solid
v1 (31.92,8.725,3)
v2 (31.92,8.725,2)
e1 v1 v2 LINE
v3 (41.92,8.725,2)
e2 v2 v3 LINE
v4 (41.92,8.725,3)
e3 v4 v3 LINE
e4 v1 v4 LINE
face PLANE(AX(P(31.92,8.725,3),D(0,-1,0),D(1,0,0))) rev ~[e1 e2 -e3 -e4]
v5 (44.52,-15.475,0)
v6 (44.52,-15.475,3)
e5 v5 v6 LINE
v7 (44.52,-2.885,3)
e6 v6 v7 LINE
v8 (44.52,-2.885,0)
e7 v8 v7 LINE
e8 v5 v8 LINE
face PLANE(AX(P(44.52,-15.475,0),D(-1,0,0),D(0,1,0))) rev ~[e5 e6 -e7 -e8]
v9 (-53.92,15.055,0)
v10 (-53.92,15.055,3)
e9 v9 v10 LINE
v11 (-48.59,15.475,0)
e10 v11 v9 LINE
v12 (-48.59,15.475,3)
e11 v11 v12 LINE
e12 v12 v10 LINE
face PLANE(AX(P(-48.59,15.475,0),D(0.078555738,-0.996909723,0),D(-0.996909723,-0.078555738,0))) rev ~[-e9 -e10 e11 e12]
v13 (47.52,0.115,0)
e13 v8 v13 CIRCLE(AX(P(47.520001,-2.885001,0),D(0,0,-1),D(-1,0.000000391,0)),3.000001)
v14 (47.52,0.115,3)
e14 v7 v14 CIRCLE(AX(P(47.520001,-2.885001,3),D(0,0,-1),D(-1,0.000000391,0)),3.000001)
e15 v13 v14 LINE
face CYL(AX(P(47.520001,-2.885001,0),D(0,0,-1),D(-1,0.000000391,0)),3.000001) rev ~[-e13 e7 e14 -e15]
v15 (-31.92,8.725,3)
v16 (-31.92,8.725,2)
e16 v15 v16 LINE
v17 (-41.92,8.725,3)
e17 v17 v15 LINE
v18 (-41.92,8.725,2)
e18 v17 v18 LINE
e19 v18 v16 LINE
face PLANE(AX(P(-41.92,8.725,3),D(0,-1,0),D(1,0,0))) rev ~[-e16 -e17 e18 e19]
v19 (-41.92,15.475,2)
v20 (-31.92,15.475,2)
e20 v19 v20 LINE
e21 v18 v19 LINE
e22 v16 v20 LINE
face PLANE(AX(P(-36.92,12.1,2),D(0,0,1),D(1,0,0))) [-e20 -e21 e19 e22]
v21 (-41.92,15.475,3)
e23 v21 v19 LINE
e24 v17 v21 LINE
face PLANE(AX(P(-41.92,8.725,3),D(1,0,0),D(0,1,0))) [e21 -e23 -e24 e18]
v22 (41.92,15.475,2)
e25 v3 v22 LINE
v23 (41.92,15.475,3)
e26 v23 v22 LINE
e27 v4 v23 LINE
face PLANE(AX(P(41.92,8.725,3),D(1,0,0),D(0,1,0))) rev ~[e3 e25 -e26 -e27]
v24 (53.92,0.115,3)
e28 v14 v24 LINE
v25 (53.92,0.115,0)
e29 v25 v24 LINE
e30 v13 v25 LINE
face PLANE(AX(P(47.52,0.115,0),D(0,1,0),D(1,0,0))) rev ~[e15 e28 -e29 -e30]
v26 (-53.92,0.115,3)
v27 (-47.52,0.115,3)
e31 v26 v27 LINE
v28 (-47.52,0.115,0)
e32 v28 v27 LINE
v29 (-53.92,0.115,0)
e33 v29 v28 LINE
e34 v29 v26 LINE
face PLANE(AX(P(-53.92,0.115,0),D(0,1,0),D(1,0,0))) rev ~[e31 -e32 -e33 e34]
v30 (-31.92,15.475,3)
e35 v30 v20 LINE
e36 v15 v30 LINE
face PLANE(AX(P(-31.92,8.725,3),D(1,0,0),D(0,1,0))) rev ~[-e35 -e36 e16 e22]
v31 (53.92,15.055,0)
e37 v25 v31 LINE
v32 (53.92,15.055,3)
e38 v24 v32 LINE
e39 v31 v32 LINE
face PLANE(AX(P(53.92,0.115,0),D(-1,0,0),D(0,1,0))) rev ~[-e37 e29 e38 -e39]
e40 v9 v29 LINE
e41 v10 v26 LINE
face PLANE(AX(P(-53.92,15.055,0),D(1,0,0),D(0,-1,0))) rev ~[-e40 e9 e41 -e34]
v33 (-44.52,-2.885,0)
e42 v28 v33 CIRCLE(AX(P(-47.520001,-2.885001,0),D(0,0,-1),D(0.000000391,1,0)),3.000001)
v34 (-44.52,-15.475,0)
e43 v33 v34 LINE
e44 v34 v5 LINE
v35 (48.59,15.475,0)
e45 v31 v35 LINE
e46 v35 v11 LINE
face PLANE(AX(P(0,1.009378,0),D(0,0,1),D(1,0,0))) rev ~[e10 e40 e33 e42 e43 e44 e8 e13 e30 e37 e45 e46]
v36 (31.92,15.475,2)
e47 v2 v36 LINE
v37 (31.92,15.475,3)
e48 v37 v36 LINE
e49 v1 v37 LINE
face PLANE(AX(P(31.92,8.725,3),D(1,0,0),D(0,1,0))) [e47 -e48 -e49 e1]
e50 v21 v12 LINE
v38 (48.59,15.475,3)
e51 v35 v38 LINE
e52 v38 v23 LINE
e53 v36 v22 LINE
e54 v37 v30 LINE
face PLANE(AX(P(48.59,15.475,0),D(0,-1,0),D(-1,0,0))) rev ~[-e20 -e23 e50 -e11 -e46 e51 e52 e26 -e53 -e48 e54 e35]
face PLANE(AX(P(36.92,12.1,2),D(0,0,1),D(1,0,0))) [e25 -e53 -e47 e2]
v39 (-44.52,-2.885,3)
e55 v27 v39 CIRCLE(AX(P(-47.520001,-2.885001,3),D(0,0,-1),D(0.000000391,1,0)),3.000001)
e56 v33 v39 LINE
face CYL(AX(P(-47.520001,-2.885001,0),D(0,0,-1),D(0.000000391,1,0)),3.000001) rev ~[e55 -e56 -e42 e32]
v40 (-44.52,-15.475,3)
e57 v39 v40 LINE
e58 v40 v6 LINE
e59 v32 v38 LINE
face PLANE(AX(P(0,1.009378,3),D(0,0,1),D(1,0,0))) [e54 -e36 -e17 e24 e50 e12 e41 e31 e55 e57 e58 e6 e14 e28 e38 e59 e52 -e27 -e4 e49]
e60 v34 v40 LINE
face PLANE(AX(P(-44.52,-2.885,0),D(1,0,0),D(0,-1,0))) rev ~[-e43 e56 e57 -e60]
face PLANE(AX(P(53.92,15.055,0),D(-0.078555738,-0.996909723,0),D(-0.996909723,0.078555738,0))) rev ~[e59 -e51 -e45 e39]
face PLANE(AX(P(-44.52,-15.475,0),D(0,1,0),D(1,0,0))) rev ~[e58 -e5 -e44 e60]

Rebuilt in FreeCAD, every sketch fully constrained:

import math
import FreeCAD as App
import Part
import Sketcher
Q = App.Units.Quantity

doc = App.newDocument("Part")
body = doc.addObject("PartDesign::Body", "Body")

# Sketch on XY plane
sketch1 = body.newObject("Sketcher::SketchObject", "Sketch")
sketch1.AttachmentSupport = (doc.getObject("XY_Plane"), [""])
sketch1.MapMode = "FlatFace"
sketch1.addGeometry(Part.LineSegment(App.Vector(48.6, 15.5, 0), App.Vector(-48.6, 15.5, 0)), False)
sketch1.addGeometry(Part.LineSegment(App.Vector(-48.6, 15.5, 0), App.Vector(-53.9, 15.1, 0)), False)
sketch1.addGeometry(Part.LineSegment(App.Vector(-53.9, 15.1, 0), App.Vector(-53.9, 0.1, 0)), False)
sketch1.addGeometry(Part.LineSegment(App.Vector(-53.9, 0.1, 0), App.Vector(-47.5, 0.1, 0)), False)
sketch1.addGeometry(Part.ArcOfCircle(Part.Circle(App.Vector(-47.5, -2.9, 0), App.Vector(0, 0, 1), 3), math.radians(0), math.radians(90)), False)
sketch1.addGeometry(Part.LineSegment(App.Vector(-44.5, -2.9, 0), App.Vector(-44.5, -15.5, 0)), False)
sketch1.addGeometry(Part.LineSegment(App.Vector(-44.5, -15.5, 0), App.Vector(44.5, -15.5, 0)), False)
sketch1.addGeometry(Part.LineSegment(App.Vector(44.5, -15.5, 0), App.Vector(44.5, -2.9, 0)), False)
sketch1.addGeometry(Part.ArcOfCircle(Part.Circle(App.Vector(47.5, -2.9, 0), App.Vector(0, 0, 1), 3), math.radians(90), math.radians(180)), False)
sketch1.addGeometry(Part.LineSegment(App.Vector(47.5, 0.1, 0), App.Vector(53.9, 0.1, 0)), False)
sketch1.addGeometry(Part.LineSegment(App.Vector(53.9, 0.1, 0), App.Vector(53.9, 15.1, 0)), False)
sketch1.addGeometry(Part.LineSegment(App.Vector(53.9, 15.1, 0), App.Vector(48.6, 15.5, 0)), False)
sketch1.addConstraint(Sketcher.Constraint("Coincident", 0, 2, 1, 1))
sketch1.addConstraint(Sketcher.Constraint("Coincident", 1, 2, 2, 1))
sketch1.addConstraint(Sketcher.Constraint("Coincident", 2, 2, 3, 1))
sketch1.addConstraint(Sketcher.Constraint("Tangent", 3, 2, 4, 2))
sketch1.addConstraint(Sketcher.Constraint("Tangent", 4, 1, 5, 1))
sketch1.addConstraint(Sketcher.Constraint("Coincident", 5, 2, 6, 1))
sketch1.addConstraint(Sketcher.Constraint("Coincident", 6, 2, 7, 1))
sketch1.addConstraint(Sketcher.Constraint("Tangent", 7, 2, 8, 2))
sketch1.addConstraint(Sketcher.Constraint("Tangent", 8, 1, 9, 1))
sketch1.addConstraint(Sketcher.Constraint("Coincident", 9, 2, 10, 1))
sketch1.addConstraint(Sketcher.Constraint("Coincident", 10, 2, 11, 1))
sketch1.addConstraint(Sketcher.Constraint("Coincident", 11, 2, 0, 1))
sketch1.addConstraint(Sketcher.Constraint("Horizontal", 0))
sketch1.addConstraint(Sketcher.Constraint("Vertical", 2))
sketch1.addConstraint(Sketcher.Constraint("Horizontal", 3))
sketch1.addConstraint(Sketcher.Constraint("Vertical", 5))
sketch1.addConstraint(Sketcher.Constraint("Horizontal", 6))
sketch1.addConstraint(Sketcher.Constraint("Vertical", 7))
sketch1.addConstraint(Sketcher.Constraint("Horizontal", 9))
sketch1.addConstraint(Sketcher.Constraint("Vertical", 10))
sketch1.addConstraint(Sketcher.Constraint("Equal", 4, 8))
sketch1.addConstraint(Sketcher.Constraint("Symmetric", 4, 3, 8, 3, -2))
sketch1.addConstraint(Sketcher.Constraint("Symmetric", 1, 2, 10, 2, -2))
sketch1.addConstraint(Sketcher.Constraint("Equal", 1, 11))
sketch1.addConstraint(Sketcher.Constraint("Radius", 4, Q("3.000001 mm")))
sketch1.addConstraint(Sketcher.Constraint("DistanceX", 3, 1, 3, 2, Q("6.4 mm")))
sketch1.addConstraint(Sketcher.Constraint("DistanceX", 0, 2, 0, 1, Q("97.18 mm")))
sketch1.addConstraint(Sketcher.Constraint("DistanceX", 6, 1, 6, 2, Q("89.04 mm")))
sketch1.addConstraint(Sketcher.Constraint("DistanceY", 2, 2, 2, 1, Q("14.94 mm")))
sketch1.addConstraint(Sketcher.Constraint("DistanceY", 5, 2, 5, 1, Q("12.59 mm")))
sketch1.addConstraint(Sketcher.Constraint("DistanceY", 4, 3, 0, 2, Q("18.360001 mm")))
sketch1.addConstraint(Sketcher.Constraint("DistanceY", 4, 3, -1, 1, Q("2.885001 mm")))
pad1 = body.newObject("PartDesign::Pad", "Pad")
pad1.Profile = sketch1
pad1.Length = 3

# Sketch on XY plane
sketch2 = body.newObject("Sketcher::SketchObject", "Sketch001")
sketch2.AttachmentSupport = (doc.getObject("XY_Plane"), [""])
sketch2.MapMode = "FlatFace"
sketch2.AttachmentOffset = App.Placement(App.Vector(0, 0, 3), App.Rotation())
sketch2.addGeometry(Part.LineSegment(App.Vector(-42, 15, 0), App.Vector(-42, 9, 0)), False)
sketch2.addGeometry(Part.LineSegment(App.Vector(-42, 9, 0), App.Vector(-32, 9, 0)), False)
sketch2.addGeometry(Part.LineSegment(App.Vector(-32, 9, 0), App.Vector(-32, 15, 0)), False)
sketch2.addGeometry(Part.LineSegment(App.Vector(-32, 15, 0), App.Vector(-42, 15, 0)), False)
sketch2.addGeometry(Part.LineSegment(App.Vector(32, 15, 0), App.Vector(32, 9, 0)), False)
sketch2.addGeometry(Part.LineSegment(App.Vector(32, 9, 0), App.Vector(42, 9, 0)), False)
sketch2.addGeometry(Part.LineSegment(App.Vector(42, 9, 0), App.Vector(42, 15, 0)), False)
sketch2.addGeometry(Part.LineSegment(App.Vector(42, 15, 0), App.Vector(32, 15, 0)), False)
sketch2.addConstraint(Sketcher.Constraint("Coincident", 0, 2, 1, 1))
sketch2.addConstraint(Sketcher.Constraint("Coincident", 1, 2, 2, 1))
sketch2.addConstraint(Sketcher.Constraint("Coincident", 2, 2, 3, 1))
sketch2.addConstraint(Sketcher.Constraint("Coincident", 3, 2, 0, 1))
sketch2.addConstraint(Sketcher.Constraint("Coincident", 4, 2, 5, 1))
sketch2.addConstraint(Sketcher.Constraint("Coincident", 5, 2, 6, 1))
sketch2.addConstraint(Sketcher.Constraint("Coincident", 6, 2, 7, 1))
sketch2.addConstraint(Sketcher.Constraint("Coincident", 7, 2, 4, 1))
sketch2.addConstraint(Sketcher.Constraint("Vertical", 0))
sketch2.addConstraint(Sketcher.Constraint("Horizontal", 1))
sketch2.addConstraint(Sketcher.Constraint("Vertical", 2))
sketch2.addConstraint(Sketcher.Constraint("Horizontal", 3))
sketch2.addConstraint(Sketcher.Constraint("Vertical", 4))
sketch2.addConstraint(Sketcher.Constraint("Horizontal", 5))
sketch2.addConstraint(Sketcher.Constraint("Vertical", 6))
sketch2.addConstraint(Sketcher.Constraint("Horizontal", 7))
sketch2.addConstraint(Sketcher.Constraint("Symmetric", 1, 2, 4, 2, -2))
sketch2.addConstraint(Sketcher.Constraint("Symmetric", 3, 2, 6, 2, -2))
sketch2.addConstraint(Sketcher.Constraint("DistanceX", 1, 1, 1, 2, Q("10 mm")))
sketch2.addConstraint(Sketcher.Constraint("DistanceY", 0, 2, 0, 1, Q("6.75 mm")))
sketch2.addConstraint(Sketcher.Constraint("DistanceX", 0, 2, -1, 1, Q("41.92 mm")))
sketch2.addConstraint(Sketcher.Constraint("DistanceY", -1, 1, 0, 2, Q("8.725 mm")))
pocket1 = body.newObject("PartDesign::Pocket", "Pocket")
pocket1.Profile = sketch2
pocket1.Length = 1

doc.recompute()
